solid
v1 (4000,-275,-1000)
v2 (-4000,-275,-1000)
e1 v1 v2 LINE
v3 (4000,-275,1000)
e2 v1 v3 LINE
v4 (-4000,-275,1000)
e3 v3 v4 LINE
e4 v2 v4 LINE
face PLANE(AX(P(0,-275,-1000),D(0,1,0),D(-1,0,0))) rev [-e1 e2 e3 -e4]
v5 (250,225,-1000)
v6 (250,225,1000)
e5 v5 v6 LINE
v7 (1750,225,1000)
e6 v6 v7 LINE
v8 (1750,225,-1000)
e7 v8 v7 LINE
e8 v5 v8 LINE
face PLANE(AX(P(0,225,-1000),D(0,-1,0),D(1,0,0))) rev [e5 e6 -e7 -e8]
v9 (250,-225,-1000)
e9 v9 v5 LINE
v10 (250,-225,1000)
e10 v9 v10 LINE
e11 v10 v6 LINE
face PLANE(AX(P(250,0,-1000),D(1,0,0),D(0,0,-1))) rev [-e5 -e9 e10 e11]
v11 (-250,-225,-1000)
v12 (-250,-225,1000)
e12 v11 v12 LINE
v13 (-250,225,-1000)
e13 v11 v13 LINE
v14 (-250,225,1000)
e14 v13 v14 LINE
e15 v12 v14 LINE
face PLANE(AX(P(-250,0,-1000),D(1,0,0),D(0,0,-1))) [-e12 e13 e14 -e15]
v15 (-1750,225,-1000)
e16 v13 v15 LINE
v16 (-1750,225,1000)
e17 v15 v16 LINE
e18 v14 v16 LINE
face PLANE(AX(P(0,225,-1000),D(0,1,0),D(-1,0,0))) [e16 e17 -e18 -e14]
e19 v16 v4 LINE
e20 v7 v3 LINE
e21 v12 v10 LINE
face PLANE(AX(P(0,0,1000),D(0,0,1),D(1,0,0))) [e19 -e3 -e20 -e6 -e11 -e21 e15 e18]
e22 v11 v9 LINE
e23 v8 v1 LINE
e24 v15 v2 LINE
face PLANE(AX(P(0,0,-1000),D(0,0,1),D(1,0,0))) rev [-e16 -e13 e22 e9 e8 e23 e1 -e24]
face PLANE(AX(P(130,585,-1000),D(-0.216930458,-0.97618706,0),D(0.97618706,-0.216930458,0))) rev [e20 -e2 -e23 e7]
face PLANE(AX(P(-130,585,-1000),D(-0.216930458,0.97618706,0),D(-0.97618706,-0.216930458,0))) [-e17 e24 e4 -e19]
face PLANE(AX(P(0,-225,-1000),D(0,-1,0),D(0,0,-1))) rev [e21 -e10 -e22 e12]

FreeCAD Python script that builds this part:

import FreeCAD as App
import Part
import Sketcher
Q = App.Units.Quantity


def add_polygon(sketch, points):
    """Adds a closed chain of lines whose ends are joined by coincident constraints."""
    first, n = sketch.GeometryCount, len(points)
    for a, b in zip(points, points[1:] + points[:1]):
        sketch.addGeometry(Part.LineSegment(App.Vector(*a, 0), App.Vector(*b, 0)), False)
    for i in range(n):
        sketch.addConstraint(Sketcher.Constraint("Coincident", first + i, 2, first + (i + 1) % n, 1))

doc = App.newDocument("Part")
body = doc.addObject("PartDesign::Body", "Body")

# Sketch on XY plane
sketch1 = body.newObject("Sketcher::SketchObject", "Sketch")
sketch1.AttachmentSupport = (doc.getObject("XY_Plane"), [""])
sketch1.MapMode = "FlatFace"
add_polygon(sketch1, [(250, -225), (-250, -225), (-250, 225), (-1750, 225), (-4000, -275), (4000, -275), (1750, 225), (250, 225)])  # lines 0-7
sketch1.addConstraint([
    Sketcher.Constraint("Horizontal", 0),
    Sketcher.Constraint("Vertical", 1),
    Sketcher.Constraint("Horizontal", 2),
    Sketcher.Constraint("Horizontal", 4),
    Sketcher.Constraint("Horizontal", 6),
    Sketcher.Constraint("Vertical", 7),
    Sketcher.Constraint("Symmetric", 0, 2, 6, 2, -1, 1),
    Sketcher.Constraint("Symmetric", 2, 2, 5, 2, -2),
    Sketcher.Constraint("Equal", 3, 5),
    Sketcher.Constraint("DistanceX", 0, 2, 0, 1, Q("500 mm")),
    Sketcher.Constraint("DistanceX", 2, 2, 2, 1, Q("1500 mm")),
    Sketcher.Constraint("DistanceX", 4, 1, 4, 2, Q("8000 mm")),
    Sketcher.Constraint("DistanceY", 1, 1, 1, 2, Q("450 mm")),
    Sketcher.Constraint("DistanceY", 3, 2, -1, 1, Q("275 mm")),
])
pad1 = body.newObject("PartDesign::Pad", "Pad")
pad1.Profile = sketch1
pad1.Type = "TwoLengths"
pad1.Length = 1000
pad1.Length2 = 1000

doc.recompute()
